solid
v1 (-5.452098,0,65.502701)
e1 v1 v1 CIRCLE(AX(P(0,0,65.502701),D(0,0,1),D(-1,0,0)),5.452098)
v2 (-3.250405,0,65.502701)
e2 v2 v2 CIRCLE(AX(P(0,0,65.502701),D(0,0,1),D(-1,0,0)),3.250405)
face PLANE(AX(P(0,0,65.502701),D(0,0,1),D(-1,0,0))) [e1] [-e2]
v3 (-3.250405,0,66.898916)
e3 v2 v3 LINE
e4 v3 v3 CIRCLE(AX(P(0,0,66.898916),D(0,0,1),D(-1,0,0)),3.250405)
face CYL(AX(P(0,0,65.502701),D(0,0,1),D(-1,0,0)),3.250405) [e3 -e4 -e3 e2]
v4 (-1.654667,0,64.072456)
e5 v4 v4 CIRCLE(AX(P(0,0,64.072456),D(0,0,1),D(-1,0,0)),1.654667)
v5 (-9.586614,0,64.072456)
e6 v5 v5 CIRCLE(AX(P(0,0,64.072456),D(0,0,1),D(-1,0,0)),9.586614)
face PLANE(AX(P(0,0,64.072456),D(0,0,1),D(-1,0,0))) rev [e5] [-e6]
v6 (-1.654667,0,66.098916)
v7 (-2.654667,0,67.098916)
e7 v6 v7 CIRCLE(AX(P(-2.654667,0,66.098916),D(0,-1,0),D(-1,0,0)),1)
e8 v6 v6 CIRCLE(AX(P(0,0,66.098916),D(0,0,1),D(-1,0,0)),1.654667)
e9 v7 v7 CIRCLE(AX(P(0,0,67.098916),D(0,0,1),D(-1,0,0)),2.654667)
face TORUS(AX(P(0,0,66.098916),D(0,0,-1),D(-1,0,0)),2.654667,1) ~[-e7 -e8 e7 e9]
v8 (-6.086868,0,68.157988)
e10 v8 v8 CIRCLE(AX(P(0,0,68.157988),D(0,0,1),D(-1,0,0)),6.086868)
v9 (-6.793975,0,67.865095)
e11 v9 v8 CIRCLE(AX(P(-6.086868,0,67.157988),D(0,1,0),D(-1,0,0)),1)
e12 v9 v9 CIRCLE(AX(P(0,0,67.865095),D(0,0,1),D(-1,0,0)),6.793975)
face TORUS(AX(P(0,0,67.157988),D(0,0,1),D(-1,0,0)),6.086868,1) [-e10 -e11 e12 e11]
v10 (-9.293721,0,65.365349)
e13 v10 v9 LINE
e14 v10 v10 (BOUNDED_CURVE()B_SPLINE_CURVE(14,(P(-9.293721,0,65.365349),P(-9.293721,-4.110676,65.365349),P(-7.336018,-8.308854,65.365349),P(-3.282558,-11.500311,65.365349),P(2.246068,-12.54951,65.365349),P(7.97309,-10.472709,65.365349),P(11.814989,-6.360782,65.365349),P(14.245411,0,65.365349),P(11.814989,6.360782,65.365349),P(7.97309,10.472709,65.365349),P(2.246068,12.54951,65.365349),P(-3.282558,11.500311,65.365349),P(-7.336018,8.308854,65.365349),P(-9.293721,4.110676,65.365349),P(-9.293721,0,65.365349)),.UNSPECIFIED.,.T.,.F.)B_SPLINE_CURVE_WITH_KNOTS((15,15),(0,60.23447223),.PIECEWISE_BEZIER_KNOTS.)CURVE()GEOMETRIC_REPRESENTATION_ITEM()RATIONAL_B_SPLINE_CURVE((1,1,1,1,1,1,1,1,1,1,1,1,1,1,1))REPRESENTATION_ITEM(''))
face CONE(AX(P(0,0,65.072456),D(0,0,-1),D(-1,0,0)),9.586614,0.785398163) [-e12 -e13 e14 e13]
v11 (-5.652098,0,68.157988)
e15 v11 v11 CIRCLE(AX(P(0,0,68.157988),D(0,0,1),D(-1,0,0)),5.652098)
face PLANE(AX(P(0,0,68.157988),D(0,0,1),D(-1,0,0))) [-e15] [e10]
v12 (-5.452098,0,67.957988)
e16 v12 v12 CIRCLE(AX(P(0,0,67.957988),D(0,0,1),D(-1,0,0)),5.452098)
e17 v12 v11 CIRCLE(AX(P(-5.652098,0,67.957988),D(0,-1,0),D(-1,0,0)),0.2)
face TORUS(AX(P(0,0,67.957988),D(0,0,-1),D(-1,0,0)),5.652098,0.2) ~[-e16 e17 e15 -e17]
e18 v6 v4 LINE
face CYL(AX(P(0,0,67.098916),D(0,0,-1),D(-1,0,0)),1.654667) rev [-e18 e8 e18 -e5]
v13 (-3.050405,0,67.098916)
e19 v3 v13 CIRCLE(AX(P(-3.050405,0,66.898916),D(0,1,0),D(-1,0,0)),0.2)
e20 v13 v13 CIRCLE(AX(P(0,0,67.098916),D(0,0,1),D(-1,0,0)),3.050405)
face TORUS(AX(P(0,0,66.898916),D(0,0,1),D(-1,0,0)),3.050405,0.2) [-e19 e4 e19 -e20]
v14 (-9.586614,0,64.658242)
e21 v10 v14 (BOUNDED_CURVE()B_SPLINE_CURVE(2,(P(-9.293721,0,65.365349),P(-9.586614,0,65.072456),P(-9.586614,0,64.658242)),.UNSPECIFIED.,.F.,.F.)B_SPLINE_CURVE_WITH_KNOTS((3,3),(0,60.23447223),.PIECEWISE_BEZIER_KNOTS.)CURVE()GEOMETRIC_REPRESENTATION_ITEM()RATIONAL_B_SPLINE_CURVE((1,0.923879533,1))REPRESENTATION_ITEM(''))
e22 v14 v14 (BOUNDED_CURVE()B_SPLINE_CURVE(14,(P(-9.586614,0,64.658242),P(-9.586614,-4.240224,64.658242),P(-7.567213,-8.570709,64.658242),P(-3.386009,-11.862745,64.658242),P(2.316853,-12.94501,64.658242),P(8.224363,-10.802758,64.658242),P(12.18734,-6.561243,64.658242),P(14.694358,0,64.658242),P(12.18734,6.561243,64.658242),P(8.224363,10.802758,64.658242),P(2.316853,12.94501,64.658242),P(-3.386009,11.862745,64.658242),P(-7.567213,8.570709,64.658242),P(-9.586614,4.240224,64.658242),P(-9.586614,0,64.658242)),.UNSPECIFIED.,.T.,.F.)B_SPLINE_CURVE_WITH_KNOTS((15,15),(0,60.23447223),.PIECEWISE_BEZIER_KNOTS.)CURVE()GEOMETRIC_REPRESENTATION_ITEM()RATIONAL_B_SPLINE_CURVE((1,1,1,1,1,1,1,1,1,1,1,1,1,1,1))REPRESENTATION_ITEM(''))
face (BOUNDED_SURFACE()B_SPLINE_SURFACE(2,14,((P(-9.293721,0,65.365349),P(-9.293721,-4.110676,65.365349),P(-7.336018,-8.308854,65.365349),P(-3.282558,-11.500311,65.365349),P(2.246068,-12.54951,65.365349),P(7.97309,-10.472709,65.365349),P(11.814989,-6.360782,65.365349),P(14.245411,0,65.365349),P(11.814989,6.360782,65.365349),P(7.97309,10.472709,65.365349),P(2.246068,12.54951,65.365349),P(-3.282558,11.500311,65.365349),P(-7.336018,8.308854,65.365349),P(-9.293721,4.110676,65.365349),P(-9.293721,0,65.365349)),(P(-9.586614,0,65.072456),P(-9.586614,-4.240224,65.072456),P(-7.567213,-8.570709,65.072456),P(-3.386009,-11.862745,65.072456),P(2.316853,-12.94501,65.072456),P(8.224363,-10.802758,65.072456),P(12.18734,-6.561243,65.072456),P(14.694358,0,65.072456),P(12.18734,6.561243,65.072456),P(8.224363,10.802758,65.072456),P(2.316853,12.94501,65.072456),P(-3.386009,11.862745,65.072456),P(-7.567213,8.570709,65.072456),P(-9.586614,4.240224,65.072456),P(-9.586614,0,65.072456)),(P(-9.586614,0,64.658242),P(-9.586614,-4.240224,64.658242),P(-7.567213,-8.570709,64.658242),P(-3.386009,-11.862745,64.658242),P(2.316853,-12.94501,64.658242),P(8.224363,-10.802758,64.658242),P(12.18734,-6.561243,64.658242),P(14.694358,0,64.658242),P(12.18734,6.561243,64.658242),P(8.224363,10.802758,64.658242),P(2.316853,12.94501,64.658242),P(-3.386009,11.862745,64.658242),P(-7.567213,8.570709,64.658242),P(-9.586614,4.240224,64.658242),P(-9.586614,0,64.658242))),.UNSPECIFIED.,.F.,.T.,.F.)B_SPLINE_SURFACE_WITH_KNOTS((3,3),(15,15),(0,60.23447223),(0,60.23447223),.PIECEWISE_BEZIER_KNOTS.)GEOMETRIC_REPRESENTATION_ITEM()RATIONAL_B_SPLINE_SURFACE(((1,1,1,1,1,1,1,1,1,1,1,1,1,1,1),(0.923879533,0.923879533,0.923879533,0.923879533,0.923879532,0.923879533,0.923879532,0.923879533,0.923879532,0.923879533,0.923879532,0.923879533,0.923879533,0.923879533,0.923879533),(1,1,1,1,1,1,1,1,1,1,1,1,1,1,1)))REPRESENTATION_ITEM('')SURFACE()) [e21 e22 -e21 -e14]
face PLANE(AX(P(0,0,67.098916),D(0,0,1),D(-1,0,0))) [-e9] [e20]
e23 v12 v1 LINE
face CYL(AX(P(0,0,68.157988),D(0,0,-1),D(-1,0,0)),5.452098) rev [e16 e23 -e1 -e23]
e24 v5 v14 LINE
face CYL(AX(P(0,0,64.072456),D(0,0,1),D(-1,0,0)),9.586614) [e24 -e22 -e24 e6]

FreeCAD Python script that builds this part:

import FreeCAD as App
import Part
import Sketcher
Q = App.Units.Quantity


def edges_at(feature, points):
    """Names of the edges that pass closest to the given points."""
    edges = feature.Shape.Edges
    near = lambda p: min(range(len(edges)), key=lambda i: edges[i].distToShape(Part.Vertex(*p))[0])
    return sorted({f"Edge{near(p) + 1}" for p in points})

doc = App.newDocument("Part")
body = doc.addObject("PartDesign::Body", "Body")

sketch1 = body.newObject("Sketcher::SketchObject", "Sketch")
sketch1.AttachmentSupport = (doc.getObject("XZ_Plane"), [""])
sketch1.MapMode = "FlatFace"
sketch1.addGeometry([
    Part.LineSegment(App.Vector(-9.6, 64.1, 0), App.Vector(-1.7, 64.1, 0)),
    Part.LineSegment(App.Vector(-1.7, 64.1, 0), App.Vector(-1.7, 67.1, 0)),
    Part.LineSegment(App.Vector(-1.7, 67.1, 0), App.Vector(-3.3, 67.1, 0)),
    Part.LineSegment(App.Vector(-3.3, 67.1, 0), App.Vector(-3.3, 65.5, 0)),
    Part.LineSegment(App.Vector(-3.3, 65.5, 0), App.Vector(-5.5, 65.5, 0)),
    Part.LineSegment(App.Vector(-5.5, 65.5, 0), App.Vector(-5.5, 68.2, 0)),
    Part.LineSegment(App.Vector(-5.5, 68.2, 0), App.Vector(-6.5, 68.2, 0)),
    Part.LineSegment(App.Vector(-6.5, 68.2, 0), App.Vector(-9.6, 65.1, 0)),
    Part.LineSegment(App.Vector(-9.6, 65.1, 0), App.Vector(-9.6, 64.1, 0)),
], False)
sketch1.addConstraint([
    Sketcher.Constraint("Coincident", 0, 2, 1, 1),
    Sketcher.Constraint("Coincident", 1, 2, 2, 1),
    Sketcher.Constraint("Coincident", 2, 2, 3, 1),
    Sketcher.Constraint("Coincident", 3, 2, 4, 1),
    Sketcher.Constraint("Coincident", 4, 2, 5, 1),
    Sketcher.Constraint("Coincident", 5, 2, 6, 1),
    Sketcher.Constraint("Coincident", 6, 2, 7, 1),
    Sketcher.Constraint("Coincident", 7, 2, 8, 1),
    Sketcher.Constraint("Coincident", 8, 2, 0, 1),
    Sketcher.Constraint("Horizontal", 0),
    Sketcher.Constraint("Vertical", 1),
    Sketcher.Constraint("Horizontal", 2),
    Sketcher.Constraint("Vertical", 3),
    Sketcher.Constraint("Horizontal", 4),
    Sketcher.Constraint("Vertical", 5),
    Sketcher.Constraint("Horizontal", 6),
    Sketcher.Constraint("Vertical", 8),
    Sketcher.Constraint("DistanceY", 8, 2, 8, 1, 1.0),
    Sketcher.Constraint("Angle", 7, Q("-135 deg")),
    Sketcher.Constraint("Distance", 7, 4.363601),
    Sketcher.Constraint("DistanceX", 2, 2, 2, 1, 1.595738),
    Sketcher.Constraint("DistanceY", 1, 1, 1, 2, 3.02646),
    Sketcher.Constraint("DistanceY", -1, 1, 3, 2, 65.502701),
    Sketcher.Constraint("DistanceX", 4, 2, -1, 1, 5.452098),
    Sketcher.Constraint("DistanceX", 0, 1, 0, 2, 7.931947),
    Sketcher.Constraint("DistanceX", 4, 2, 4, 1, 2.201693),
    Sketcher.Constraint("DistanceY", 3, 2, 3, 1, 1.596215),
])
revolution = body.newObject("PartDesign::Revolution", "Revolution")
revolution.Profile = sketch1
revolution.ReferenceAxis = (sketch1, ["V_Axis"])
revolution.Angle = 360
doc.recompute()

fillet = body.newObject("PartDesign::Fillet", "Fillet")
fillet.Base = (revolution, edges_at(revolution, [(6.501, 0, 68.158)]))
fillet.Radius = 1
doc.recompute()

fillet2 = body.newObject("PartDesign::Fillet", "Fillet001")
fillet2.Base = (fillet, edges_at(fillet, [(9.587, 0, 65.072)]))
fillet2.Radius = 1
doc.recompute()

fillet3 = body.newObject("PartDesign::Fillet", "Fillet002")
fillet3.Base = (fillet2, edges_at(fillet2, [(1.655, 0, 67.099)]))
fillet3.Radius = 1
doc.recompute()

fillet4 = body.newObject("PartDesign::Fillet", "Fillet003")
fillet4.Base = (fillet3, edges_at(fillet3, [(5.452, 0, 68.158)]))
fillet4.Radius = 0.2
doc.recompute()

fillet5 = body.newObject("PartDesign::Fillet", "Fillet004")
fillet5.Base = (fillet4, edges_at(fillet4, [(3.25, 0, 67.099)]))
fillet5.Radius = 0.2

doc.recompute()
